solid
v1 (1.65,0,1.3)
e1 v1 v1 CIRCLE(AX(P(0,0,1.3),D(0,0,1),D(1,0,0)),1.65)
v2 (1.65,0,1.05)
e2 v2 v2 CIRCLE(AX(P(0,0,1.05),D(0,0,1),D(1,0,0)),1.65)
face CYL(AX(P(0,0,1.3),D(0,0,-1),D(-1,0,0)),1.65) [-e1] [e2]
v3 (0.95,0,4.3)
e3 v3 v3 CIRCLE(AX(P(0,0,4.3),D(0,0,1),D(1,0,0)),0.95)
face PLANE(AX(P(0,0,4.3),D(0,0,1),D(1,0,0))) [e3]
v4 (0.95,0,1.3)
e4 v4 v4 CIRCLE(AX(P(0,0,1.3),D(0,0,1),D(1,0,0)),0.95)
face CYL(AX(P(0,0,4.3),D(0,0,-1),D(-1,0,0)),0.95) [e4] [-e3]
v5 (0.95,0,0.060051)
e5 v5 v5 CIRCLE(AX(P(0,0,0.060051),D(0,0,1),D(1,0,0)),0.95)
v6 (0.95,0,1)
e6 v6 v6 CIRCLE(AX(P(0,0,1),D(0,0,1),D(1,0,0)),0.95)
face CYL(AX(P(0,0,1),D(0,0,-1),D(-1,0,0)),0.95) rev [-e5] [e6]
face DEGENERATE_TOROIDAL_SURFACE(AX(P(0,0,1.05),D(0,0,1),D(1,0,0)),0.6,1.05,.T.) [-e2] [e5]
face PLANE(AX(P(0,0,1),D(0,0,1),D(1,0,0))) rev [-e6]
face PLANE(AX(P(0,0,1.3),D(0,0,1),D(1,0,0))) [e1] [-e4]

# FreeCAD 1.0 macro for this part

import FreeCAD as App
import Part
import Sketcher

V = App.Vector


def edges_at(feature, points):
    """Names of the edges that pass closest to the given points."""
    edges = feature.Shape.Edges
    near = lambda p: min(range(len(edges)), key=lambda i: edges[i].distToShape(Part.Vertex(*p))[0])
    return sorted({f"Edge{near(p) + 1}" for p in points})

doc = App.newDocument("Part")
body = doc.addObject("PartDesign::Body", "Body")

# Sketch on XY plane
sketch1 = body.newObject("Sketcher::SketchObject", "Sketch")
sketch1.AttachmentSupport = (doc.getObject("XY_Plane"), [""])
sketch1.MapMode = "FlatFace"
sketch1.addGeometry(Part.Circle(V(0, 0, 0), V(0, 0, 1), 1.6), False)
sketch1.addConstraint(Sketcher.Constraint("Coincident", 0, 3, -1, 1))
sketch1.addConstraint(Sketcher.Constraint("Diameter", 0, 3.3))
pad1 = body.newObject("PartDesign::Pad", "Pad")
pad1.Profile = sketch1
pad1.Length = 1.3

# Sketch on XY plane
sketch2 = body.newObject("Sketcher::SketchObject", "Sketch001")
sketch2.AttachmentSupport = (doc.getObject("XY_Plane"), [""])
sketch2.MapMode = "FlatFace"
sketch2.AttachmentOffset = App.Placement(V(0, 0, 1.3), App.Rotation())
sketch2.addGeometry(Part.Circle(V(0, 0, 0), V(0, 0, 1), 0.9), False)
sketch2.addConstraint(Sketcher.Constraint("Coincident", 0, 3, -1, 1))
sketch2.addConstraint(Sketcher.Constraint("Diameter", 0, 1.9))
pad2 = body.newObject("PartDesign::Pad", "Pad001")
pad2.Profile = sketch2
pad2.Length = 3
doc.recompute()

fillet = body.newObject("PartDesign::Fillet", "Fillet")
fillet.Base = (pad2, edges_at(pad2, [(-1.65, 0, 0)]))
fillet.Radius = 1.05

# Sketch on XY plane
sketch3 = body.newObject("Sketcher::SketchObject", "Sketch002")
sketch3.AttachmentSupport = (doc.getObject("XY_Plane"), [""])
sketch3.MapMode = "FlatFace"
sketch3.addGeometry(Part.Circle(V(0, 0, 0), V(0, 0, 1), 0.9), False)
sketch3.addConstraint(Sketcher.Constraint("Coincident", 0, 3, -1, 1))
sketch3.addConstraint(Sketcher.Constraint("Diameter", 0, 1.9))
pocket1 = body.newObject("PartDesign::Pocket", "Pocket")
pocket1.Profile = sketch3
pocket1.Length = 1
pocket1.Reversed = True

doc.recompute()
